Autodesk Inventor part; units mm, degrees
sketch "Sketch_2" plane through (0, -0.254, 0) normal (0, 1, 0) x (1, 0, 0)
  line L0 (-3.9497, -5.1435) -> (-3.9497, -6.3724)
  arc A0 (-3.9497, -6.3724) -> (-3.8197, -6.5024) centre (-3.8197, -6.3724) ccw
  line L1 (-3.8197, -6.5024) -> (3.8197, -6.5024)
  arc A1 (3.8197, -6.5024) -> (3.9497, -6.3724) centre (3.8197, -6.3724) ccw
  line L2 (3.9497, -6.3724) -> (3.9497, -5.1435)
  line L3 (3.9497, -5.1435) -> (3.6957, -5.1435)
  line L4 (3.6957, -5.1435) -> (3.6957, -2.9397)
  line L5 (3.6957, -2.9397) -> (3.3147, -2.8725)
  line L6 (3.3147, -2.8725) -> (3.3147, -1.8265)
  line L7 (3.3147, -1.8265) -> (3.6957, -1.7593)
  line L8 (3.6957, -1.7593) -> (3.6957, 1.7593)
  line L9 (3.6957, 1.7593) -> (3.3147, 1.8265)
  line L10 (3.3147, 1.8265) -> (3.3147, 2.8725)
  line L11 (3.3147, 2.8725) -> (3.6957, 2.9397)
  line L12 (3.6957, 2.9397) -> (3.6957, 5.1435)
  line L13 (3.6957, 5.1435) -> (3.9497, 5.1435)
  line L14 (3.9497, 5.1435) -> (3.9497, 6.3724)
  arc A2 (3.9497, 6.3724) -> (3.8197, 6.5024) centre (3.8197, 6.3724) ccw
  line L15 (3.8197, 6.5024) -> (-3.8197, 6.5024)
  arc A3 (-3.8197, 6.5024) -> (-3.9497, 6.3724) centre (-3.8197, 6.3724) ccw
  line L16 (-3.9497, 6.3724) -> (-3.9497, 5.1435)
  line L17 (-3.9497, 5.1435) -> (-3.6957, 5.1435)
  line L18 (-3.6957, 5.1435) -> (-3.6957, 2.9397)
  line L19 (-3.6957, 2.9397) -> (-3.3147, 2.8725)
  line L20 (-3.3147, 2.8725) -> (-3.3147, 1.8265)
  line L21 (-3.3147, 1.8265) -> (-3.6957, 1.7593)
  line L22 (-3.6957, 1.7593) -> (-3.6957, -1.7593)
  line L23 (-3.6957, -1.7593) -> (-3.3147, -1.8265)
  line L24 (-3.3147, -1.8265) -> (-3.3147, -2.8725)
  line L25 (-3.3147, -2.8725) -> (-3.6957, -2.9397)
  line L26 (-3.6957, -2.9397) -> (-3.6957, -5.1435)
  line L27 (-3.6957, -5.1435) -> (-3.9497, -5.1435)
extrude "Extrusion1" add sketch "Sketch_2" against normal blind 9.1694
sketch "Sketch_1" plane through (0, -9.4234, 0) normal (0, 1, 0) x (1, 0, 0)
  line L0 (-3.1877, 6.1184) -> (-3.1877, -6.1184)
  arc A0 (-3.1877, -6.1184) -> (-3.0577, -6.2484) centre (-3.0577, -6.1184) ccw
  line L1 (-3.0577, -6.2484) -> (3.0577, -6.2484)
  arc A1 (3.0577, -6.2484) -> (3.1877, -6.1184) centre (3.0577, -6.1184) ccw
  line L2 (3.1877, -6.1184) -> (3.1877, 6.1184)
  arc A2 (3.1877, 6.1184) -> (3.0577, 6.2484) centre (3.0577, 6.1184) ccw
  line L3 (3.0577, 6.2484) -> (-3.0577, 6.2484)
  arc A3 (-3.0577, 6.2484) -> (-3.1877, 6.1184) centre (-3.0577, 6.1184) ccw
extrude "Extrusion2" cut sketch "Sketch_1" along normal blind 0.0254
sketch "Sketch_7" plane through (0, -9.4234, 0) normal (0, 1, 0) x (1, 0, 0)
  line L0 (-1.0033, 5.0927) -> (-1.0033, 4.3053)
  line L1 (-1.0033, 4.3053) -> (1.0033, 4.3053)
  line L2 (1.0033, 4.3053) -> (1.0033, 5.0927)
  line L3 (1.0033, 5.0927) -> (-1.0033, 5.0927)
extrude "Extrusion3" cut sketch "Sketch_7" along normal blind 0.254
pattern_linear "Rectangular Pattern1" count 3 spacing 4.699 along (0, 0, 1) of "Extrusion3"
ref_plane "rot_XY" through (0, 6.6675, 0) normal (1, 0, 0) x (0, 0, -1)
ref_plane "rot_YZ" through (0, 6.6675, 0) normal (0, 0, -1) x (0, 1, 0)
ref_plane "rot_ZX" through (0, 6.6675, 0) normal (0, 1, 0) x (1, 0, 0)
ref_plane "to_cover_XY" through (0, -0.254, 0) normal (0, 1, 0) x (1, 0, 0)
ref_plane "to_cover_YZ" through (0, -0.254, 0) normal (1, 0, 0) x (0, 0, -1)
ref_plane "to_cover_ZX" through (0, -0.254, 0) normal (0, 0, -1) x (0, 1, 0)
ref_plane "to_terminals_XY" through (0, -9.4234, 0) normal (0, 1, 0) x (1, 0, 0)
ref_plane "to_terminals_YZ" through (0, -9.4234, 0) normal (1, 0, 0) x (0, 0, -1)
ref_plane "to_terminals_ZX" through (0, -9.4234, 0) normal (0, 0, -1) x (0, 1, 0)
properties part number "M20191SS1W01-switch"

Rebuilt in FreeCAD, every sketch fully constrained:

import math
import FreeCAD as App
import Part
import Sketcher
from FreeCAD import Vector
Q = App.Units.Quantity


def add_polygon(sketch, points):
    """Adds a closed chain of lines whose ends are joined by coincident constraints."""
    first, n = sketch.GeometryCount, len(points)
    for a, b in zip(points, points[1:] + points[:1]):
        sketch.addGeometry(Part.LineSegment(App.Vector(*a, 0), App.Vector(*b, 0)), False)
    for i in range(n):
        sketch.addConstraint(Sketcher.Constraint("Coincident", first + i, 2, first + (i + 1) % n, 1))

doc = App.newDocument("Part")
body = doc.addObject("PartDesign::Body", "Body")

sketch1 = body.newObject("Sketcher::SketchObject", "Sketch")
sketch1.AttachmentSupport = (doc.getObject("XZ_Plane"), [""])
sketch1.MapMode = "FlatFace"
sketch1.AttachmentOffset = App.Placement(Vector(0, 0, 0.01 * 25.4), App.Rotation())
sketch1.addGeometry(Part.LineSegment(Vector(-3.7, 5.14, 0), Vector(-3.95, 5.14, 0)), False)
sketch1.addGeometry(Part.LineSegment(Vector(-3.95, 5.14, 0), Vector(-3.95, 6.37, 0)), False)
sketch1.addGeometry(Part.ArcOfCircle(Part.Circle(Vector(-3.82, 6.37, 0), Vector(0, 0, 1), 0.13), math.radians(90), math.radians(180)), False)
sketch1.addGeometry(Part.LineSegment(Vector(-3.82, 6.5, 0), Vector(3.82, 6.5, 0)), False)
sketch1.addGeometry(Part.ArcOfCircle(Part.Circle(Vector(3.82, 6.37, 0), Vector(0, 0, 1), 0.13), math.radians(0), math.radians(90)), False)
sketch1.addGeometry(Part.LineSegment(Vector(3.95, 6.37, 0), Vector(3.95, 5.14, 0)), False)
sketch1.addGeometry(Part.LineSegment(Vector(3.95, 5.14, 0), Vector(3.7, 5.14, 0)), False)
sketch1.addGeometry(Part.LineSegment(Vector(3.7, 5.14, 0), Vector(3.7, 2.94, 0)), False)
sketch1.addGeometry(Part.LineSegment(Vector(3.7, 2.94, 0), Vector(3.31, 2.87, 0)), False)
sketch1.addGeometry(Part.LineSegment(Vector(3.31, 2.87, 0), Vector(3.31, 1.83, 0)), False)
sketch1.addGeometry(Part.LineSegment(Vector(3.31, 1.83, 0), Vector(3.7, 1.76, 0)), False)
sketch1.addGeometry(Part.LineSegment(Vector(3.7, 1.76, 0), Vector(3.7, -1.76, 0)), False)
sketch1.addGeometry(Part.LineSegment(Vector(3.7, -1.76, 0), Vector(3.31, -1.83, 0)), False)
sketch1.addGeometry(Part.LineSegment(Vector(3.31, -1.83, 0), Vector(3.31, -2.87, 0)), False)
sketch1.addGeometry(Part.LineSegment(Vector(3.31, -2.87, 0), Vector(3.7, -2.94, 0)), False)
sketch1.addGeometry(Part.LineSegment(Vector(3.7, -2.94, 0), Vector(3.7, -5.14, 0)), False)
sketch1.addGeometry(Part.LineSegment(Vector(3.7, -5.14, 0), Vector(3.95, -5.14, 0)), False)
sketch1.addGeometry(Part.LineSegment(Vector(3.95, -5.14, 0), Vector(3.95, -6.37, 0)), False)
sketch1.addGeometry(Part.ArcOfCircle(Part.Circle(Vector(3.82, -6.37, 0), Vector(0, 0, 1), 0.13), math.radians(-90), math.radians(0)), False)
sketch1.addGeometry(Part.LineSegment(Vector(3.82, -6.5, 0), Vector(-3.82, -6.5, 0)), False)
sketch1.addGeometry(Part.ArcOfCircle(Part.Circle(Vector(-3.82, -6.37, 0), Vector(0, 0, 1), 0.13), math.radians(180), math.radians(270)), False)
sketch1.addGeometry(Part.LineSegment(Vector(-3.95, -6.37, 0), Vector(-3.95, -5.14, 0)), False)
sketch1.addGeometry(Part.LineSegment(Vector(-3.95, -5.14, 0), Vector(-3.7, -5.14, 0)), False)
sketch1.addGeometry(Part.LineSegment(Vector(-3.7, -5.14, 0), Vector(-3.7, -2.94, 0)), False)
sketch1.addGeometry(Part.LineSegment(Vector(-3.7, -2.94, 0), Vector(-3.31, -2.87, 0)), False)
sketch1.addGeometry(Part.LineSegment(Vector(-3.31, -2.87, 0), Vector(-3.31, -1.83, 0)), False)
sketch1.addGeometry(Part.LineSegment(Vector(-3.31, -1.83, 0), Vector(-3.7, -1.76, 0)), False)
sketch1.addGeometry(Part.LineSegment(Vector(-3.7, -1.76, 0), Vector(-3.7, 1.76, 0)), False)
sketch1.addGeometry(Part.LineSegment(Vector(-3.7, 1.76, 0), Vector(-3.31, 1.83, 0)), False)
sketch1.addGeometry(Part.LineSegment(Vector(-3.31, 1.83, 0), Vector(-3.31, 2.87, 0)), False)
sketch1.addGeometry(Part.LineSegment(Vector(-3.31, 2.87, 0), Vector(-3.7, 2.94, 0)), False)
sketch1.addGeometry(Part.LineSegment(Vector(-3.7, 2.94, 0), Vector(-3.7, 5.14, 0)), False)
sketch1.addConstraint(Sketcher.Constraint("Coincident", 0, 2, 1, 1))
sketch1.addConstraint(Sketcher.Constraint("Tangent", 1, 2, 2, 2))
sketch1.addConstraint(Sketcher.Constraint("Tangent", 2, 1, 3, 1))
sketch1.addConstraint(Sketcher.Constraint("Tangent", 3, 2, 4, 2))
sketch1.addConstraint(Sketcher.Constraint("Tangent", 4, 1, 5, 1))
sketch1.addConstraint(Sketcher.Constraint("Coincident", 5, 2, 6, 1))
sketch1.addConstraint(Sketcher.Constraint("Coincident", 6, 2, 7, 1))
sketch1.addConstraint(Sketcher.Constraint("Coincident", 7, 2, 8, 1))
sketch1.addConstraint(Sketcher.Constraint("Coincident", 8, 2, 9, 1))
sketch1.addConstraint(Sketcher.Constraint("Coincident", 9, 2, 10, 1))
sketch1.addConstraint(Sketcher.Constraint("Coincident", 10, 2, 11, 1))
sketch1.addConstraint(Sketcher.Constraint("Coincident", 11, 2, 12, 1))
sketch1.addConstraint(Sketcher.Constraint("Coincident", 12, 2, 13, 1))
sketch1.addConstraint(Sketcher.Constraint("Coincident", 13, 2, 14, 1))
sketch1.addConstraint(Sketcher.Constraint("Coincident", 14, 2, 15, 1))
sketch1.addConstraint(Sketcher.Constraint("Coincident", 15, 2, 16, 1))
sketch1.addConstraint(Sketcher.Constraint("Coincident", 16, 2, 17, 1))
sketch1.addConstraint(Sketcher.Constraint("Tangent", 17, 2, 18, 2))
sketch1.addConstraint(Sketcher.Constraint("Tangent", 18, 1, 19, 1))
sketch1.addConstraint(Sketcher.Constraint("Tangent", 19, 2, 20, 2))
sketch1.addConstraint(Sketcher.Constraint("Tangent", 20, 1, 21, 1))
sketch1.addConstraint(Sketcher.Constraint("Coincident", 21, 2, 22, 1))
sketch1.addConstraint(Sketcher.Constraint("Coincident", 22, 2, 23, 1))
sketch1.addConstraint(Sketcher.Constraint("Coincident", 23, 2, 24, 1))
sketch1.addConstraint(Sketcher.Constraint("Coincident", 24, 2, 25, 1))
sketch1.addConstraint(Sketcher.Constraint("Coincident", 25, 2, 26, 1))
sketch1.addConstraint(Sketcher.Constraint("Coincident", 26, 2, 27, 1))
sketch1.addConstraint(Sketcher.Constraint("Coincident", 27, 2, 28, 1))
sketch1.addConstraint(Sketcher.Constraint("Coincident", 28, 2, 29, 1))
sketch1.addConstraint(Sketcher.Constraint("Coincident", 29, 2, 30, 1))
sketch1.addConstraint(Sketcher.Constraint("Coincident", 30, 2, 31, 1))
sketch1.addConstraint(Sketcher.Constraint("Coincident", 31, 2, 0, 1))
sketch1.addConstraint(Sketcher.Constraint("Horizontal", 0))
sketch1.addConstraint(Sketcher.Constraint("Vertical", 1))
sketch1.addConstraint(Sketcher.Constraint("Horizontal", 3))
sketch1.addConstraint(Sketcher.Constraint("Vertical", 5))
sketch1.addConstraint(Sketcher.Constraint("Horizontal", 6))
sketch1.addConstraint(Sketcher.Constraint("Vertical", 7))
sketch1.addConstraint(Sketcher.Constraint("Vertical", 9))
sketch1.addConstraint(Sketcher.Constraint("Vertical", 11))
sketch1.addConstraint(Sketcher.Constraint("Vertical", 13))
sketch1.addConstraint(Sketcher.Constraint("Vertical", 15))
sketch1.addConstraint(Sketcher.Constraint("Horizontal", 16))
sketch1.addConstraint(Sketcher.Constraint("Vertical", 17))
sketch1.addConstraint(Sketcher.Constraint("Horizontal", 19))
sketch1.addConstraint(Sketcher.Constraint("Vertical", 21))
sketch1.addConstraint(Sketcher.Constraint("Horizontal", 22))
sketch1.addConstraint(Sketcher.Constraint("Vertical", 23))
sketch1.addConstraint(Sketcher.Constraint("Vertical", 25))
sketch1.addConstraint(Sketcher.Constraint("Vertical", 27))
sketch1.addConstraint(Sketcher.Constraint("Vertical", 29))
sketch1.addConstraint(Sketcher.Constraint("Vertical", 31))
sketch1.addConstraint(Sketcher.Constraint("Equal", 2, 4))
sketch1.addConstraint(Sketcher.Constraint("Equal", 4, 18))
sketch1.addConstraint(Sketcher.Constraint("Equal", 18, 20))
sketch1.addConstraint(Sketcher.Constraint("Symmetric", 2, 3, 18, 3, -1, 1))
sketch1.addConstraint(Sketcher.Constraint("Symmetric", 5, 2, 21, 2, -1, 1))
sketch1.addConstraint(Sketcher.Constraint("Symmetric", 7, 2, 23, 2, -1, 1))
sketch1.addConstraint(Sketcher.Constraint("Symmetric", 8, 2, 24, 2, -1, 1))
sketch1.addConstraint(Sketcher.Constraint("Symmetric", 10, 2, 26, 2, -1, 1))
sketch1.addConstraint(Sketcher.Constraint("Symmetric", 12, 2, 28, 2, -1, 1))
sketch1.addConstraint(Sketcher.Constraint("Symmetric", 14, 2, 30, 2, -1, 1))
sketch1.addConstraint(Sketcher.Constraint("Symmetric", 0, 2, 5, 2, -2))
sketch1.addConstraint(Sketcher.Constraint("Symmetric", 15, 2, 22, 2, -2))
sketch1.addConstraint(Sketcher.Constraint("Symmetric", 13, 2, 24, 2, -2))
sketch1.addConstraint(Sketcher.Constraint("Parallel", 8, 12))
sketch1.addConstraint(Sketcher.Constraint("Parallel", 10, 14))
sketch1.addConstraint(Sketcher.Constraint("Parallel", 14, 26))
sketch1.addConstraint(Sketcher.Constraint("Parallel", 24, 28))
sketch1.addConstraint(Sketcher.Constraint("Parallel", 26, 30))
sketch1.addConstraint(Sketcher.Constraint("Horizontal", 14, 2, 23, 2))
sketch1.addConstraint(Sketcher.Constraint("Horizontal", 12, 2, 25, 2))
sketch1.addConstraint(Sketcher.Constraint("Vertical", 7, 2, 10, 2))
sketch1.addConstraint(Sketcher.Constraint("DistanceX", 0, 2, 0, 1, Q("0.01 in")))
sketch1.addConstraint(Sketcher.Constraint("Radius", 2, 0.13))
sketch1.addConstraint(Sketcher.Constraint("DistanceY", -1, 1, 2, 1, Q("0.256 in")))
sketch1.addConstraint(Sketcher.Constraint("DistanceX", 1, 2, 4, 1, Q("0.311 in")))
sketch1.addConstraint(Sketcher.Constraint("DistanceX", 8, 2, 7, 2, Q("0.015 in")))
sketch1.addConstraint(Sketcher.Constraint("DistanceY", 11, 2, 7, 2, Q("0.185 in")))
sketch1.addConstraint(Sketcher.Constraint("DistanceY", 1, 1, 1, 2, 1.229))
sketch1.addConstraint(Sketcher.Constraint("DistanceY", 7, 2, 7, 1, 2.2038))
sketch1.addConstraint(Sketcher.Constraint("DistanceY", 9, 2, 9, 1, 1.046))
pad1 = body.newObject("PartDesign::Pad", "Pad")
pad1.Profile = sketch1
pad1.Length = Q("0.361 in")

sketch2 = body.newObject("Sketcher::SketchObject", "Sketch001")
sketch2.AttachmentSupport = (doc.getObject("XZ_Plane"), [""])
sketch2.MapMode = "FlatFace"
sketch2.AttachmentOffset = App.Placement(Vector(0, 0, 0.371 * 25.4), App.Rotation())
sketch2.addGeometry(Part.ArcOfCircle(Part.Circle(Vector(-3.06, -6.12, 0), Vector(0, 0, 1), 0.13), math.radians(180), math.radians(270)), False)
sketch2.addGeometry(Part.LineSegment(Vector(-3.19, -6.12, 0), Vector(-3.19, 6.12, 0)), False)
sketch2.addGeometry(Part.ArcOfCircle(Part.Circle(Vector(-3.06, 6.12, 0), Vector(0, 0, 1), 0.13), math.radians(90), math.radians(180)), False)
sketch2.addGeometry(Part.LineSegment(Vector(-3.06, 6.25, 0), Vector(3.06, 6.25, 0)), False)
sketch2.addGeometry(Part.ArcOfCircle(Part.Circle(Vector(3.06, 6.12, 0), Vector(0, 0, 1), 0.13), math.radians(0), math.radians(90)), False)
sketch2.addGeometry(Part.LineSegment(Vector(3.19, 6.12, 0), Vector(3.19, -6.12, 0)), False)
sketch2.addGeometry(Part.ArcOfCircle(Part.Circle(Vector(3.06, -6.12, 0), Vector(0, 0, 1), 0.13), math.radians(-90), math.radians(0)), False)
sketch2.addGeometry(Part.LineSegment(Vector(3.06, -6.25, 0), Vector(-3.06, -6.25, 0)), False)
sketch2.addConstraint(Sketcher.Constraint("Tangent", 0, 1, 1, 1))
sketch2.addConstraint(Sketcher.Constraint("Tangent", 1, 2, 2, 2))
sketch2.addConstraint(Sketcher.Constraint("Tangent", 2, 1, 3, 1))
sketch2.addConstraint(Sketcher.Constraint("Tangent", 3, 2, 4, 2))
sketch2.addConstraint(Sketcher.Constraint("Tangent", 4, 1, 5, 1))
sketch2.addConstraint(Sketcher.Constraint("Tangent", 5, 2, 6, 2))
sketch2.addConstraint(Sketcher.Constraint("Tangent", 6, 1, 7, 1))
sketch2.addConstraint(Sketcher.Constraint("Tangent", 7, 2, 0, 2))
sketch2.addConstraint(Sketcher.Constraint("Vertical", 1))
sketch2.addConstraint(Sketcher.Constraint("Horizontal", 3))
sketch2.addConstraint(Sketcher.Constraint("Vertical", 5))
sketch2.addConstraint(Sketcher.Constraint("Horizontal", 7))
sketch2.addConstraint(Sketcher.Constraint("Equal", 0, 2))
sketch2.addConstraint(Sketcher.Constraint("Equal", 2, 4))
sketch2.addConstraint(Sketcher.Constraint("Equal", 4, 6))
sketch2.addConstraint(Sketcher.Constraint("Symmetric", 0, 3, 4, 3, -1, 1))
sketch2.addConstraint(Sketcher.Constraint("Radius", 0, 0.13))
sketch2.addConstraint(Sketcher.Constraint("DistanceY", -1, 1, 2, 1, Q("0.246 in")))
sketch2.addConstraint(Sketcher.Constraint("DistanceX", 1, 2, 4, 1, Q("0.251 in")))
pocket1 = body.newObject("PartDesign::Pocket", "Pocket")
pocket1.Profile = sketch2
pocket1.Length = Q("0.001 in")

sketch3 = body.newObject("Sketcher::SketchObject", "Sketch002")
sketch3.AttachmentSupport = (doc.getObject("XZ_Plane"), [""])
sketch3.MapMode = "FlatFace"
sketch3.AttachmentOffset = App.Placement(Vector(0, 0, 0.371 * 25.4), App.Rotation())
add_polygon(sketch3, [(1, -5.1), (-1, -5.1), (-1, -4.3), (1, -4.3)])
sketch3.addConstraint(Sketcher.Constraint("Horizontal", 0))
sketch3.addConstraint(Sketcher.Constraint("Vertical", 1))
sketch3.addConstraint(Sketcher.Constraint("Horizontal", 2))
sketch3.addConstraint(Sketcher.Constraint("Vertical", 3))
sketch3.addConstraint(Sketcher.Constraint("DistanceX", 0, 2, 0, 1, Q("0.079 in")))
sketch3.addConstraint(Sketcher.Constraint("DistanceY", 1, 1, 1, 2, Q("0.031 in")))
sketch3.addConstraint(Sketcher.Constraint("DistanceX", 0, 2, -1, 1, Q("0.0395 in")))
sketch3.addConstraint(Sketcher.Constraint("DistanceY", 0, 2, -1, 1, Q("0.2005 in")))
pocket2 = body.newObject("PartDesign::Pocket", "Pocket001")
pocket2.Profile = sketch3
pocket2.Length = Q("0.01 in")
doc.recompute()

linearpattern = body.newObject("PartDesign::LinearPattern", "LinearPattern")
linearpattern.Originals = [pocket2]
linearpattern.Direction = (doc.getObject("Z_Axis"), [""])
linearpattern.Mode = "offset"
linearpattern.Offset = Q("0.185 in")
linearpattern.Occurrences = 3
body.Tip = linearpattern

doc.recompute()
